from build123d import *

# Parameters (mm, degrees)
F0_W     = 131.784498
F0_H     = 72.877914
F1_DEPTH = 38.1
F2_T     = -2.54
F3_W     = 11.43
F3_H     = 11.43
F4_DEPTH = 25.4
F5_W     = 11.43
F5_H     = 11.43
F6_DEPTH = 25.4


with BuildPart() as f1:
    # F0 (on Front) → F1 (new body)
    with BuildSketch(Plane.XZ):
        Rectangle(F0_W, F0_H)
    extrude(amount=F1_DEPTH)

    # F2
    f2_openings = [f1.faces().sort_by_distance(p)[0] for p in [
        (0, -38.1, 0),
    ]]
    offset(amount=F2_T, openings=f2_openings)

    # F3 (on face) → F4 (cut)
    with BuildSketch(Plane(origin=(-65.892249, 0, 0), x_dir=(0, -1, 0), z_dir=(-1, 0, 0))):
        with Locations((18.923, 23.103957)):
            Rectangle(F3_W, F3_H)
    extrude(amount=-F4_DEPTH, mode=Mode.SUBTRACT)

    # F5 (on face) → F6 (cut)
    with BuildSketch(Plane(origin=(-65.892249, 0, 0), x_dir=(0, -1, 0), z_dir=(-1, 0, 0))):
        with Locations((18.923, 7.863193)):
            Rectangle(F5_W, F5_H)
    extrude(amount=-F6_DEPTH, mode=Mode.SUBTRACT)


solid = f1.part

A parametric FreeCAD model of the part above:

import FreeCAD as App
import Part
import Sketcher
Q = App.Units.Quantity


def faces_at(feature, points):
    """Names of the faces that lie closest to the given points."""
    faces = feature.Shape.Faces
    near = lambda p: min(range(len(faces)), key=lambda i: faces[i].distToShape(Part.Vertex(*p))[0])
    return sorted({f"Face{near(p) + 1}" for p in points})

doc = App.newDocument("Part")
params = doc.addObject("Spreadsheet::Sheet", "Params")
for row, (alias, value) in enumerate([
    ("pad1_length", "1.5 in"),
    ("thickness_wall", "0.1 in"),
    ("sketch2_width", "0.45 in"),
    ("pocket1_length", "1 in"),
    ("sketch3_width", "0.45 in"),
    ("pocket2_length", "1 in"),
], start=1):
    params.set(f"A{row}", alias)
    params.set(f"B{row}", "=" + value)
    params.setAlias(f"B{row}", alias)

body = doc.addObject("PartDesign::Body", "Body")

# Sketch on XZ plane
sketch1 = doc.addObject("Sketcher::SketchObject", "Sketch")
body.addObject(sketch1)
sketch1.AttachmentSupport = (doc.XZ_Plane, [""])
sketch1.MapMode = "FlatFace"
sketch1.addGeometry([
    Part.LineSegment(App.Vector(-66, 36, 0), App.Vector(-66, -36, 0)),
    Part.LineSegment(App.Vector(-66, -36, 0), App.Vector(66, -36, 0)),
    Part.LineSegment(App.Vector(66, -36, 0), App.Vector(66, 36, 0)),
    Part.LineSegment(App.Vector(66, 36, 0), App.Vector(-66, 36, 0)),
], False)
sketch1.addConstraint([
    Sketcher.Constraint("Coincident", 0, 2, 1, 1),
    Sketcher.Constraint("Coincident", 1, 2, 2, 1),
    Sketcher.Constraint("Coincident", 2, 2, 3, 1),
    Sketcher.Constraint("Coincident", 3, 2, 0, 1),
    Sketcher.Constraint("Vertical", 0),
    Sketcher.Constraint("Horizontal", 1),
    Sketcher.Constraint("Vertical", 2),
    Sketcher.Constraint("Horizontal", 3),
    Sketcher.Constraint("Symmetric", 0, 2, 2, 2, -1, 1),
    Sketcher.Constraint("DistanceX", 1, 1, 1, 2, Q("131.784498 mm")),
    Sketcher.Constraint("DistanceY", 0, 2, 0, 1, Q("72.877914 mm")),
])
pad1 = doc.addObject("PartDesign::Pad", "Pad")
body.addObject(pad1)
pad1.Profile = sketch1
pad1.setExpression("Length", "Params.pad1_length")
doc.recompute()

thickness = doc.addObject("PartDesign::Thickness", "Thickness")
body.addObject(thickness)
thickness.Base = (pad1, faces_at(pad1, [(0, -38.1, 0)]))
thickness.setExpression("Value", "Params.thickness_wall")
thickness.Reversed = True
thickness.Join = "Arc"

# Sketch on YZ plane
sketch2 = doc.addObject("Sketcher::SketchObject", "Sketch001")
body.addObject(sketch2)
sketch2.AttachmentSupport = (doc.YZ_Plane, [""])
sketch2.MapMode = "FlatFace"
sketch2.AttachmentOffset = App.Placement(App.Vector(0, 0, -65.892249), App.Rotation())
sketch2.addGeometry([
    Part.LineSegment(App.Vector(-13, 29, 0), App.Vector(-13, 17, 0)),
    Part.LineSegment(App.Vector(-13, 17, 0), App.Vector(-25, 17, 0)),
    Part.LineSegment(App.Vector(-25, 17, 0), App.Vector(-25, 29, 0)),
    Part.LineSegment(App.Vector(-25, 29, 0), App.Vector(-13, 29, 0)),
], False)
sketch2.addConstraint([
    Sketcher.Constraint("Coincident", 0, 2, 1, 1),
    Sketcher.Constraint("Coincident", 1, 2, 2, 1),
    Sketcher.Constraint("Coincident", 2, 2, 3, 1),
    Sketcher.Constraint("Coincident", 3, 2, 0, 1),
    Sketcher.Constraint("Vertical", 0),
    Sketcher.Constraint("Horizontal", 1),
    Sketcher.Constraint("Vertical", 2),
    Sketcher.Constraint("Horizontal", 3),
    Sketcher.Constraint("Equal", 3, 0),
    Sketcher.Constraint("DistanceX", 1, 2, 1, 1, Q("0.45 in")),
    Sketcher.Constraint("DistanceX", 0, 2, -1, 1, Q("0.52 in")),
    Sketcher.Constraint("DistanceY", -1, 1, 0, 2, Q("17.388957 mm")),
])
sketch2.setExpression("Constraints[9]", "Params.sketch2_width")
pocket1 = doc.addObject("PartDesign::Pocket", "Pocket")
body.addObject(pocket1)
pocket1.Profile = sketch2
pocket1.setExpression("Length", "Params.pocket1_length")
pocket1.Reversed = True

# Sketch on YZ plane
sketch3 = doc.addObject("Sketcher::SketchObject", "Sketch002")
body.addObject(sketch3)
sketch3.AttachmentSupport = (doc.YZ_Plane, [""])
sketch3.MapMode = "FlatFace"
sketch3.AttachmentOffset = App.Placement(App.Vector(0, 0, -65.892249), App.Rotation())
sketch3.addGeometry([
    Part.LineSegment(App.Vector(-13, 14, 0), App.Vector(-13, 2, 0)),
    Part.LineSegment(App.Vector(-13, 2, 0), App.Vector(-25, 2, 0)),
    Part.LineSegment(App.Vector(-25, 2, 0), App.Vector(-25, 14, 0)),
    Part.LineSegment(App.Vector(-25, 14, 0), App.Vector(-13, 14, 0)),
], False)
sketch3.addConstraint([
    Sketcher.Constraint("Coincident", 0, 2, 1, 1),
    Sketcher.Constraint("Coincident", 1, 2, 2, 1),
    Sketcher.Constraint("Coincident", 2, 2, 3, 1),
    Sketcher.Constraint("Coincident", 3, 2, 0, 1),
    Sketcher.Constraint("Vertical", 0),
    Sketcher.Constraint("Horizontal", 1),
    Sketcher.Constraint("Vertical", 2),
    Sketcher.Constraint("Horizontal", 3),
    Sketcher.Constraint("Equal", 3, 0),
    Sketcher.Constraint("DistanceX", 1, 2, 1, 1, Q("0.45 in")),
    Sketcher.Constraint("DistanceX", 0, 2, -1, 1, Q("0.52 in")),
    Sketcher.Constraint("DistanceY", -1, 1, 0, 2, Q("2.148193 mm")),
])
sketch3.setExpression("Constraints[9]", "Params.sketch3_width")
pocket2 = doc.addObject("PartDesign::Pocket", "Pocket001")
body.addObject(pocket2)
pocket2.Profile = sketch3
pocket2.setExpression("Length", "Params.pocket2_length")
pocket2.Reversed = True

doc.recompute()
